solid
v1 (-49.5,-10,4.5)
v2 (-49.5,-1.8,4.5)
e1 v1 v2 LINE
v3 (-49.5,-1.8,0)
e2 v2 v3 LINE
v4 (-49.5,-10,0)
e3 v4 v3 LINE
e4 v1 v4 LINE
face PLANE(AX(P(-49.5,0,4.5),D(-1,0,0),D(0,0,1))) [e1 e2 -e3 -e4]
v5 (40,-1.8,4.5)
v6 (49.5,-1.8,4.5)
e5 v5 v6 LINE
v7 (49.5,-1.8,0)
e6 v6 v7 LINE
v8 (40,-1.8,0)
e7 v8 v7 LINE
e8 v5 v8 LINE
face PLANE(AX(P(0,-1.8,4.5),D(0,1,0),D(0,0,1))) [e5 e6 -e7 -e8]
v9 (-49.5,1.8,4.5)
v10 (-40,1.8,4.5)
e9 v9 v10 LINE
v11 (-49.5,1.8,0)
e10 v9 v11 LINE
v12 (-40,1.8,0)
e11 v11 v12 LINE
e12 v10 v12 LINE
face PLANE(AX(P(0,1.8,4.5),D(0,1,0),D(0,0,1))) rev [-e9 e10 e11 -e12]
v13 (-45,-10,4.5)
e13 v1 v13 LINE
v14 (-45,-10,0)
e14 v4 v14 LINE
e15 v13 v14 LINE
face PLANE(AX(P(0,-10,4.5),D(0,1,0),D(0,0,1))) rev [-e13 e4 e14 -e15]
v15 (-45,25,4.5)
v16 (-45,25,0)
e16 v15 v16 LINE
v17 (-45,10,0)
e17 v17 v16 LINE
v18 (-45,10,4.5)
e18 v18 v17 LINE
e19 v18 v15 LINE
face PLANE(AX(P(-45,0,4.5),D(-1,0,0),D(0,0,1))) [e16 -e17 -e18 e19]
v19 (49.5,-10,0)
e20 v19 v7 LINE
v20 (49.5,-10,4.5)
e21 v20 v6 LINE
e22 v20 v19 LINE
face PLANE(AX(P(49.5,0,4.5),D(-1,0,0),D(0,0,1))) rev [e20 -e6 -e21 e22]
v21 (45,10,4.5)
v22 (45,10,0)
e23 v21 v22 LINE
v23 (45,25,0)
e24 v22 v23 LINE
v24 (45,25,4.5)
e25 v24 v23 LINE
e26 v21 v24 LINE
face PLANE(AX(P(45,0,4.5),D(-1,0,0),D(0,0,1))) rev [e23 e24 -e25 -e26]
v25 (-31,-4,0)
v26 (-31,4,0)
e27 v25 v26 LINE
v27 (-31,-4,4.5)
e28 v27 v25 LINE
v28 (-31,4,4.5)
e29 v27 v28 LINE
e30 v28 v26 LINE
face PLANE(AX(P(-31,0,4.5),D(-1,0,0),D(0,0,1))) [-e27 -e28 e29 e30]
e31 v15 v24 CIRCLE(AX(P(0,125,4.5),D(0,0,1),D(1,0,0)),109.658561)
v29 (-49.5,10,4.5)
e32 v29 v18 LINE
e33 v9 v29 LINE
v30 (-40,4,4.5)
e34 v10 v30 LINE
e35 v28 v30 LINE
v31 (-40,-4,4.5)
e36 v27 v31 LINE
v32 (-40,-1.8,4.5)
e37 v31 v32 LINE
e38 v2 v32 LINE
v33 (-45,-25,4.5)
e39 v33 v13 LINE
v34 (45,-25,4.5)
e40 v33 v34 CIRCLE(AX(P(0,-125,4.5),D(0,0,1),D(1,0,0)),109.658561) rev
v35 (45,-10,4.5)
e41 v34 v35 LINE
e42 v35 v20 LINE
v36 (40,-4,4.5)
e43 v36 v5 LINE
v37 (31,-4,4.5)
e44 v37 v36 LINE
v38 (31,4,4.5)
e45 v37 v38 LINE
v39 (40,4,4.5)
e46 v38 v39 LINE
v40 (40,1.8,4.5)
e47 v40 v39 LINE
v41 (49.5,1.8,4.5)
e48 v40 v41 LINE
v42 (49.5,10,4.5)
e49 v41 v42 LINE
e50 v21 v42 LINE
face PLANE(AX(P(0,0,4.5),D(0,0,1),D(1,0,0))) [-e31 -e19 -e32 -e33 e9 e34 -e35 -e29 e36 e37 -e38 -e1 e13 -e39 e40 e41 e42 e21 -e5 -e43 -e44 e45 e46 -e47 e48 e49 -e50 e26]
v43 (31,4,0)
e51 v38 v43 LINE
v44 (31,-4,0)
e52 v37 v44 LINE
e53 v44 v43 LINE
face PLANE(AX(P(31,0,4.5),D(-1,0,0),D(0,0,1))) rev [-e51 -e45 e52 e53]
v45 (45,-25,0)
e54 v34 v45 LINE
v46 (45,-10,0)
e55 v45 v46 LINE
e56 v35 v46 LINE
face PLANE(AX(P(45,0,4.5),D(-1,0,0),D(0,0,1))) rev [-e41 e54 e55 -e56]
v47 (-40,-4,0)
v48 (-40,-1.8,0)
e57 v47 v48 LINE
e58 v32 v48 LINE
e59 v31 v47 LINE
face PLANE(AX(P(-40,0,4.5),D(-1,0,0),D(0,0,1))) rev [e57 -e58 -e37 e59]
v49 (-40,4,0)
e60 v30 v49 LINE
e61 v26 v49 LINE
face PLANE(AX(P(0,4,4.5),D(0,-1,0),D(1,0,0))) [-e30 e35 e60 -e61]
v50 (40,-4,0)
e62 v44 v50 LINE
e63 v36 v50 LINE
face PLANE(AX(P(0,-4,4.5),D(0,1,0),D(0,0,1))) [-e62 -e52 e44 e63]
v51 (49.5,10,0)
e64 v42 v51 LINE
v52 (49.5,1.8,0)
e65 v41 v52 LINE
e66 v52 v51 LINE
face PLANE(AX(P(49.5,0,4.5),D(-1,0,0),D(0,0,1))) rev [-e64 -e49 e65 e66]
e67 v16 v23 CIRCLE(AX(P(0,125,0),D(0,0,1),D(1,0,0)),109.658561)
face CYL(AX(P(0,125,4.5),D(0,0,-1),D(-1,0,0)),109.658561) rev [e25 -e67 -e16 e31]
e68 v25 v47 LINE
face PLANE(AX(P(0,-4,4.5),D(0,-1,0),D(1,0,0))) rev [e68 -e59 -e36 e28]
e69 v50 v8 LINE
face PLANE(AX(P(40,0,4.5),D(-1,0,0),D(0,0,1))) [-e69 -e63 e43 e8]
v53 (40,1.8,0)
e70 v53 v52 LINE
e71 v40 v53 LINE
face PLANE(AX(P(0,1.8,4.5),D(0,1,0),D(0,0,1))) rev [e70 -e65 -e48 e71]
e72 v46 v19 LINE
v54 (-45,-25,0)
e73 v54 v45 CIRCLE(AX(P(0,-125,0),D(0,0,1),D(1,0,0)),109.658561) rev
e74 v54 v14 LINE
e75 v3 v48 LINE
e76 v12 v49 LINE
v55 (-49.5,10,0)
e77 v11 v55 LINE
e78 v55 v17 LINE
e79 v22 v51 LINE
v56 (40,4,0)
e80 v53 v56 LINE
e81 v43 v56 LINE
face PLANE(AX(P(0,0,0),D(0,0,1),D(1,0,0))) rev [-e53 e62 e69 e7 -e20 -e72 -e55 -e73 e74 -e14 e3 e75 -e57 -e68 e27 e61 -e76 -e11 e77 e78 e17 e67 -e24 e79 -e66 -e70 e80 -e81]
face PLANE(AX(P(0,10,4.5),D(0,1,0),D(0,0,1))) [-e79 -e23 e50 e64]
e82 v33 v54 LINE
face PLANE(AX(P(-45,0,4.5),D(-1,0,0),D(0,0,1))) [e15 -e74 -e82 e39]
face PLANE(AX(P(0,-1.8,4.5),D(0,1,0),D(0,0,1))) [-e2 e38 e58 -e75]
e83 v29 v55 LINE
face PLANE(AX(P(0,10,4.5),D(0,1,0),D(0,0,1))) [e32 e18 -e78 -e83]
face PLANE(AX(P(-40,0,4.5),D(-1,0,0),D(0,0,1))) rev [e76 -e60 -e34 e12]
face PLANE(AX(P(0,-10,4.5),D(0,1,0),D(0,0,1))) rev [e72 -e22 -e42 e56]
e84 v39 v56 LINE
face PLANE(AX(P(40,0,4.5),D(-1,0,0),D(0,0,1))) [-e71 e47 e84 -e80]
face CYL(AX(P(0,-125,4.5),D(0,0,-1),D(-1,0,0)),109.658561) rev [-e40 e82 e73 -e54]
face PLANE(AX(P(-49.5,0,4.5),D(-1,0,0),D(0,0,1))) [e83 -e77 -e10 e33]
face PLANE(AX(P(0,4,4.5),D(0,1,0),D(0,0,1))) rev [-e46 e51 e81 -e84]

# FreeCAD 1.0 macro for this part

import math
import FreeCAD as App
import Part
import Sketcher
Q = App.Units.Quantity

doc = App.newDocument("Part")
body = doc.addObject("PartDesign::Body", "Body")

sketch1 = body.newObject("Sketcher::SketchObject", "Sketch")
sketch1.AttachmentSupport = (doc.getObject("XY_Plane"), [""])
sketch1.MapMode = "FlatFace"
sketch1.addGeometry([
    Part.LineSegment(App.Vector(-49.5, -1.8, 0), App.Vector(-49.5, -10, 0)),
    Part.LineSegment(App.Vector(-49.5, -10, 0), App.Vector(-45, -10, 0)),
    Part.LineSegment(App.Vector(-45, -10, 0), App.Vector(-45, -25, 0)),
    Part.ArcOfCircle(Part.Circle(App.Vector(0, -125, 0), App.Vector(0, 0, 1), 109.7), math.radians(66), math.radians(114)),
    Part.LineSegment(App.Vector(45, -25, 0), App.Vector(45, -10, 0)),
    Part.LineSegment(App.Vector(45, -10, 0), App.Vector(49.5, -10, 0)),
    Part.LineSegment(App.Vector(49.5, -10, 0), App.Vector(49.5, -1.8, 0)),
    Part.LineSegment(App.Vector(49.5, -1.8, 0), App.Vector(40, -1.8, 0)),
    Part.LineSegment(App.Vector(40, -1.8, 0), App.Vector(40, -4, 0)),
    Part.LineSegment(App.Vector(40, -4, 0), App.Vector(31, -4, 0)),
    Part.LineSegment(App.Vector(31, -4, 0), App.Vector(31, 4, 0)),
    Part.LineSegment(App.Vector(31, 4, 0), App.Vector(40, 4, 0)),
    Part.LineSegment(App.Vector(40, 4, 0), App.Vector(40, 1.8, 0)),
    Part.LineSegment(App.Vector(40, 1.8, 0), App.Vector(49.5, 1.8, 0)),
    Part.LineSegment(App.Vector(49.5, 1.8, 0), App.Vector(49.5, 10, 0)),
    Part.LineSegment(App.Vector(49.5, 10, 0), App.Vector(45, 10, 0)),
    Part.LineSegment(App.Vector(45, 10, 0), App.Vector(45, 25, 0)),
    Part.ArcOfCircle(Part.Circle(App.Vector(0, 125, 0), App.Vector(0, 0, 1), 109.7), math.radians(-114), math.radians(-66)),
    Part.LineSegment(App.Vector(-45, 25, 0), App.Vector(-45, 10, 0)),
    Part.LineSegment(App.Vector(-45, 10, 0), App.Vector(-49.5, 10, 0)),
    Part.LineSegment(App.Vector(-49.5, 10, 0), App.Vector(-49.5, 1.8, 0)),
    Part.LineSegment(App.Vector(-49.5, 1.8, 0), App.Vector(-40, 1.8, 0)),
    Part.LineSegment(App.Vector(-40, 1.8, 0), App.Vector(-40, 4, 0)),
    Part.LineSegment(App.Vector(-40, 4, 0), App.Vector(-31, 4, 0)),
    Part.LineSegment(App.Vector(-31, 4, 0), App.Vector(-31, -4, 0)),
    Part.LineSegment(App.Vector(-31, -4, 0), App.Vector(-40, -4, 0)),
    Part.LineSegment(App.Vector(-40, -4, 0), App.Vector(-40, -1.8, 0)),
    Part.LineSegment(App.Vector(-40, -1.8, 0), App.Vector(-49.5, -1.8, 0)),
], False)
sketch1.addConstraint([
    Sketcher.Constraint("Coincident", 0, 2, 1, 1),
    Sketcher.Constraint("Coincident", 1, 2, 2, 1),
    Sketcher.Constraint("Coincident", 2, 2, 3, 2),
    Sketcher.Constraint("Coincident", 3, 1, 4, 1),
    Sketcher.Constraint("Coincident", 4, 2, 5, 1),
    Sketcher.Constraint("Coincident", 5, 2, 6, 1),
    Sketcher.Constraint("Coincident", 6, 2, 7, 1),
    Sketcher.Constraint("Coincident", 7, 2, 8, 1),
    Sketcher.Constraint("Coincident", 8, 2, 9, 1),
    Sketcher.Constraint("Coincident", 9, 2, 10, 1),
    Sketcher.Constraint("Coincident", 10, 2, 11, 1),
    Sketcher.Constraint("Coincident", 11, 2, 12, 1),
    Sketcher.Constraint("Coincident", 12, 2, 13, 1),
    Sketcher.Constraint("Coincident", 13, 2, 14, 1),
    Sketcher.Constraint("Coincident", 14, 2, 15, 1),
    Sketcher.Constraint("Coincident", 15, 2, 16, 1),
    Sketcher.Constraint("Coincident", 16, 2, 17, 2),
    Sketcher.Constraint("Coincident", 17, 1, 18, 1),
    Sketcher.Constraint("Coincident", 18, 2, 19, 1),
    Sketcher.Constraint("Coincident", 19, 2, 20, 1),
    Sketcher.Constraint("Coincident", 20, 2, 21, 1),
    Sketcher.Constraint("Coincident", 21, 2, 22, 1),
    Sketcher.Constraint("Coincident", 22, 2, 23, 1),
    Sketcher.Constraint("Coincident", 23, 2, 24, 1),
    Sketcher.Constraint("Coincident", 24, 2, 25, 1),
    Sketcher.Constraint("Coincident", 25, 2, 26, 1),
    Sketcher.Constraint("Coincident", 26, 2, 27, 1),
    Sketcher.Constraint("Coincident", 27, 2, 0, 1),
    Sketcher.Constraint("Vertical", 0),
    Sketcher.Constraint("Horizontal", 1),
    Sketcher.Constraint("Vertical", 2),
    Sketcher.Constraint("Vertical", 4),
    Sketcher.Constraint("Horizontal", 5),
    Sketcher.Constraint("Vertical", 6),
    Sketcher.Constraint("Horizontal", 7),
    Sketcher.Constraint("Vertical", 8),
    Sketcher.Constraint("Horizontal", 9),
    Sketcher.Constraint("Vertical", 10),
    Sketcher.Constraint("Horizontal", 11),
    Sketcher.Constraint("Vertical", 12),
    Sketcher.Constraint("Horizontal", 13),
    Sketcher.Constraint("Vertical", 14),
    Sketcher.Constraint("Horizontal", 15),
    Sketcher.Constraint("Vertical", 16),
    Sketcher.Constraint("Vertical", 18),
    Sketcher.Constraint("Horizontal", 19),
    Sketcher.Constraint("Vertical", 20),
    Sketcher.Constraint("Horizontal", 21),
    Sketcher.Constraint("Vertical", 22),
    Sketcher.Constraint("Horizontal", 23),
    Sketcher.Constraint("Vertical", 24),
    Sketcher.Constraint("Horizontal", 25),
    Sketcher.Constraint("Vertical", 26),
    Sketcher.Constraint("Horizontal", 27),
    Sketcher.Constraint("Equal", 3, 17),
    Sketcher.Constraint("Symmetric", 3, 3, 17, 3, -1, 1),
    Sketcher.Constraint("Symmetric", 0, 2, 14, 2, -1, 1),
    Sketcher.Constraint("Symmetric", 4, 2, 18, 2, -1, 1),
    Sketcher.Constraint("Symmetric", 6, 2, 20, 2, -1, 1),
    Sketcher.Constraint("Symmetric", 8, 2, 22, 2, -1, 1),
    Sketcher.Constraint("Symmetric", 10, 2, 24, 2, -1, 1),
    Sketcher.Constraint("Symmetric", 12, 2, 26, 2, -1, 1),
    Sketcher.Constraint("Symmetric", 2, 2, 3, 1, -2),
    Sketcher.Constraint("Symmetric", 0, 2, 5, 2, -2),
    Sketcher.Constraint("Symmetric", 12, 2, 21, 2, -2),
    Sketcher.Constraint("Horizontal", 16, 2, 17, 1),
    Sketcher.Constraint("Horizontal", 11, 2, 22, 2),
    Sketcher.Constraint("DistanceX", 9, 2, 9, 1, Q("9 mm")),
    Sketcher.Constraint("DistanceY", 2, 2, 2, 1, Q("15 mm")),
    Sketcher.Constraint("DistanceY", 10, 1, 10, 2, Q("8 mm")),
    Sketcher.Constraint("DistanceX", 1, 1, 1, 2, Q("4.5 mm")),
    Sketcher.Constraint("DistanceX", 7, 2, 7, 1, Q("9.5 mm")),
    Sketcher.Constraint("DistanceY", 0, 2, 0, 1, Q("8.2 mm")),
    Sketcher.Constraint("DistanceY", 8, 2, 8, 1, Q("2.2 mm")),
    Sketcher.Constraint("DistanceY", 3, 3, -1, 1, Q("125 mm")),
    Sketcher.Constraint("DistanceX", 1, 2, -1, 1, Q("45 mm")),
])
pad1 = body.newObject("PartDesign::Pad", "Pad")
pad1.Profile = sketch1
pad1.Length = 4.5

doc.recompute()
